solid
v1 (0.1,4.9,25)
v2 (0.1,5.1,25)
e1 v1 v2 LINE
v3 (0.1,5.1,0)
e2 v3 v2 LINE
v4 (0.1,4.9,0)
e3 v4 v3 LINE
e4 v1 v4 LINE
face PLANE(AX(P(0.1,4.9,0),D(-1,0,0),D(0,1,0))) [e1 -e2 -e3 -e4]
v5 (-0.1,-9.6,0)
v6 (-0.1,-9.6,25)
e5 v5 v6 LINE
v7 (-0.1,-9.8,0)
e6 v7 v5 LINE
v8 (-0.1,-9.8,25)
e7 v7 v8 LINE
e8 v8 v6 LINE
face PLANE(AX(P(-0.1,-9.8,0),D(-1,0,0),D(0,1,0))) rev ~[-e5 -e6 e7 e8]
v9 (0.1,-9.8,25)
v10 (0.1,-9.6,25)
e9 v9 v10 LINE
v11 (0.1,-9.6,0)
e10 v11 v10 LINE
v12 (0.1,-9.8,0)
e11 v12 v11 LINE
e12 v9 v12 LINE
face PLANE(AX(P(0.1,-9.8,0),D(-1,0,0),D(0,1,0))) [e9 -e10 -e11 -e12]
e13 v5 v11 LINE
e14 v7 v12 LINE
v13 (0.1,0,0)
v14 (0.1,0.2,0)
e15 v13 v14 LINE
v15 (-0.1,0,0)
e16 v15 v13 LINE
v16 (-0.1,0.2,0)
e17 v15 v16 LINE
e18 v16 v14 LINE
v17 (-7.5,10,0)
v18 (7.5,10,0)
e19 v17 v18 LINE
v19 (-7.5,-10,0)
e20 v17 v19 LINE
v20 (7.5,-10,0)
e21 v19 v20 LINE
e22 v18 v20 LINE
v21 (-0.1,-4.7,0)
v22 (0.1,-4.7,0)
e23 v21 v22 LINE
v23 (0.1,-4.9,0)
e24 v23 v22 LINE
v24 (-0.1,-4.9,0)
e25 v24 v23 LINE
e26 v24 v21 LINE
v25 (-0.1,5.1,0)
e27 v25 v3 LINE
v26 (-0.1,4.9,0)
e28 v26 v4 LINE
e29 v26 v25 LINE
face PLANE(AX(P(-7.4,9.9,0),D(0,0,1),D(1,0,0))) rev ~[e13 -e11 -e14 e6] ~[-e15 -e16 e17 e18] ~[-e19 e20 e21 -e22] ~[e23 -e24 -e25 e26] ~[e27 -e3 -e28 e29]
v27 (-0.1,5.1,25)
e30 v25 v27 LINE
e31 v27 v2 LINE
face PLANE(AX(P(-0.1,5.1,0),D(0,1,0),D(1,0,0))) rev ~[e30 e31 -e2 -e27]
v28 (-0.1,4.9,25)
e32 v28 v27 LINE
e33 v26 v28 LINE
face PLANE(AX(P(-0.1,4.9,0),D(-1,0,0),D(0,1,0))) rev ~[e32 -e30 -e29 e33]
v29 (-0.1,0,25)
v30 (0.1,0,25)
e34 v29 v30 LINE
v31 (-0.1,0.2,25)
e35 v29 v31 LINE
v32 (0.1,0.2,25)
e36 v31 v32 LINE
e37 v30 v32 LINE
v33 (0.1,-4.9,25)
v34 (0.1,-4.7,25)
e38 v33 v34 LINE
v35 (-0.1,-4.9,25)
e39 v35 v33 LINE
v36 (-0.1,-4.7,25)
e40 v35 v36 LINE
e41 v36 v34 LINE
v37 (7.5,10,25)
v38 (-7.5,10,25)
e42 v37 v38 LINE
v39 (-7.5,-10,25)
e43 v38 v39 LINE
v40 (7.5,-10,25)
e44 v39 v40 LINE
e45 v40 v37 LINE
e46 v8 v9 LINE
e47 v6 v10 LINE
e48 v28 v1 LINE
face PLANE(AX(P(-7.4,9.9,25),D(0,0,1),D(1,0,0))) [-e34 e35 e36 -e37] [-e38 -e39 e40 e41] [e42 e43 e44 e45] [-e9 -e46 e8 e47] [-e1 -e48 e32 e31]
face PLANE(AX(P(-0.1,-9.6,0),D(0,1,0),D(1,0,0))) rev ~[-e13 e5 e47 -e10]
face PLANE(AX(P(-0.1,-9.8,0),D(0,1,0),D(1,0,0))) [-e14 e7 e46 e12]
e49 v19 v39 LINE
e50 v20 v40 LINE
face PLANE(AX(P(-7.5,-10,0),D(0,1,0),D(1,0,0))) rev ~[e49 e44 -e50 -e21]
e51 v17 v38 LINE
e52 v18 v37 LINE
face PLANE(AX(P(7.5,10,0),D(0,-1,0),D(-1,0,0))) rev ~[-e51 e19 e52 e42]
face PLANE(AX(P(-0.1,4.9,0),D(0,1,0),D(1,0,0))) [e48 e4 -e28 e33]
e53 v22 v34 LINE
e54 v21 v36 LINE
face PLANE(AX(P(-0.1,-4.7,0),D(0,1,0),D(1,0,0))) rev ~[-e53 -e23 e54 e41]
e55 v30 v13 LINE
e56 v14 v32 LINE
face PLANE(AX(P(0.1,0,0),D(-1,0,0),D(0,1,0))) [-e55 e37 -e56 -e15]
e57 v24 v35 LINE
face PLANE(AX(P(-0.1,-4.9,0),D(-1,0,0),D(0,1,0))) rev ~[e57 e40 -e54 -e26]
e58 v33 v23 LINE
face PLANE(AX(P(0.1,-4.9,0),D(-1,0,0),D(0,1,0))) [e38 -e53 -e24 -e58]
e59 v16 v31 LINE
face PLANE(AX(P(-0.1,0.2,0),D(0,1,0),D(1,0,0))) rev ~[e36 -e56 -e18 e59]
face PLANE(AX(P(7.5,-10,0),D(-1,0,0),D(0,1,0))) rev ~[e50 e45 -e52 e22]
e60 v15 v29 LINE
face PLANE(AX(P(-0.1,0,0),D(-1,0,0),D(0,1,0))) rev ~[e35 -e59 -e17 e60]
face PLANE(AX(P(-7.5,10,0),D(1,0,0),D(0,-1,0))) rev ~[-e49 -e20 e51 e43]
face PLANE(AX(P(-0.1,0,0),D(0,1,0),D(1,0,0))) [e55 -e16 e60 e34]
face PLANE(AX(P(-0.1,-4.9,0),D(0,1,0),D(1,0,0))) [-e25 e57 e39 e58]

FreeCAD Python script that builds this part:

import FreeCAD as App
import Part
import Sketcher

V = App.Vector
Q = App.Units.Quantity


def add_polygon(sketch, points):
    """Adds a closed chain of lines whose ends are joined by coincident constraints."""
    first, n = sketch.GeometryCount, len(points)
    for a, b in zip(points, points[1:] + points[:1]):
        sketch.addGeometry(Part.LineSegment(App.Vector(*a, 0), App.Vector(*b, 0)), False)
    for i in range(n):
        sketch.addConstraint(Sketcher.Constraint("Coincident", first + i, 2, first + (i + 1) % n, 1))

doc = App.newDocument("Part")
params = doc.addObject("Spreadsheet::Sheet", "Params")
for row, (alias, value) in enumerate([
    ("sketch1_width", "15 mm"),
    ("sketch1_width2", "7.2 mm"),
    ("sketch1_height", "4.7 mm"),
    ("pad1_length", "0.725 mm"),
    ("sketch2_width", "15 mm"),
    ("sketch2_height", "20 mm"),
    ("sketch2_width2", "0.2 mm"),
    ("pad2_length", "25 mm"),
], start=1):
    params.set(f"A{row}", alias)
    params.set(f"B{row}", "=" + value)
    params.setAlias(f"B{row}", alias)

body = doc.addObject("PartDesign::Body", "Body")

sketch1 = body.newObject("Sketcher::SketchObject", "Sketch")
sketch1.AttachmentSupport = (doc.getObject("XY_Plane"), [""])
sketch1.MapMode = "FlatFace"
add_polygon(sketch1, [(-0.1, 10), (-7.3, 10), (-7.3, 9.8), (-7.5, 9.8), (-7.5, 5.1), (-7.3, 5.1), (-7.3, 4.9), (-7.5, 4.9), (-7.5, 0.2), (-7.3, 0.2), (-7.3, 0), (-7.5, 0), (-7.5, -4.7), (-7.3, -4.7), (-7.3, -4.9), (-7.5, -4.9), (-7.5, -9.6), (-7.3, -9.6), (-7.3, -9.8), (-7.5, -9.8), (-7.5, -10), (7.5, -10), (7.5, -9.8), (7.3, -9.8), (7.3, -9.6), (7.5, -9.6), (7.5, -4.9), (7.3, -4.9), (7.3, -4.7), (7.5, -4.7), (7.5, 0), (7.3, 0), (7.3, 0.2), (7.5, 0.2), (7.5, 4.9), (7.3, 4.9), (7.3, 5.1), (7.5, 5.1), (7.5, 9.8), (7.3, 9.8), (7.3, 10), (0.1, 10), (0.1, 9.8), (-0.1, 9.8)])
add_polygon(sketch1, [(0.1, -9.8), (-0.1, -9.8), (-0.1, -9.6), (0.1, -9.6)])
add_polygon(sketch1, [(0.1, -4.9), (-0.1, -4.9), (-0.1, -4.7), (0.1, -4.7)])
add_polygon(sketch1, [(0.1, 0), (-0.1, 0), (-0.1, 0.2), (0.1, 0.2)])
add_polygon(sketch1, [(0.1, 4.9), (-0.1, 4.9), (-0.1, 5.1), (0.1, 5.1)])
sketch1.addConstraint(Sketcher.Constraint("Horizontal", 0))
sketch1.addConstraint(Sketcher.Constraint("Vertical", 1))
sketch1.addConstraint(Sketcher.Constraint("Horizontal", 2))
sketch1.addConstraint(Sketcher.Constraint("Vertical", 3))
sketch1.addConstraint(Sketcher.Constraint("Horizontal", 4))
sketch1.addConstraint(Sketcher.Constraint("Vertical", 5))
sketch1.addConstraint(Sketcher.Constraint("Horizontal", 6))
sketch1.addConstraint(Sketcher.Constraint("Vertical", 7))
sketch1.addConstraint(Sketcher.Constraint("Horizontal", 8))
sketch1.addConstraint(Sketcher.Constraint("Vertical", 9))
sketch1.addConstraint(Sketcher.Constraint("Horizontal", 10))
sketch1.addConstraint(Sketcher.Constraint("Vertical", 11))
sketch1.addConstraint(Sketcher.Constraint("Horizontal", 12))
sketch1.addConstraint(Sketcher.Constraint("Vertical", 13))
sketch1.addConstraint(Sketcher.Constraint("Horizontal", 14))
sketch1.addConstraint(Sketcher.Constraint("Vertical", 15))
sketch1.addConstraint(Sketcher.Constraint("Horizontal", 16))
sketch1.addConstraint(Sketcher.Constraint("Vertical", 17))
sketch1.addConstraint(Sketcher.Constraint("Horizontal", 18))
sketch1.addConstraint(Sketcher.Constraint("Vertical", 19))
sketch1.addConstraint(Sketcher.Constraint("Horizontal", 20))
sketch1.addConstraint(Sketcher.Constraint("Vertical", 21))
sketch1.addConstraint(Sketcher.Constraint("Horizontal", 22))
sketch1.addConstraint(Sketcher.Constraint("Vertical", 23))
sketch1.addConstraint(Sketcher.Constraint("Horizontal", 24))
sketch1.addConstraint(Sketcher.Constraint("Vertical", 25))
sketch1.addConstraint(Sketcher.Constraint("Horizontal", 26))
sketch1.addConstraint(Sketcher.Constraint("Vertical", 27))
sketch1.addConstraint(Sketcher.Constraint("Horizontal", 28))
sketch1.addConstraint(Sketcher.Constraint("Vertical", 29))
sketch1.addConstraint(Sketcher.Constraint("Horizontal", 30))
sketch1.addConstraint(Sketcher.Constraint("Vertical", 31))
sketch1.addConstraint(Sketcher.Constraint("Horizontal", 32))
sketch1.addConstraint(Sketcher.Constraint("Vertical", 33))
sketch1.addConstraint(Sketcher.Constraint("Horizontal", 34))
sketch1.addConstraint(Sketcher.Constraint("Vertical", 35))
sketch1.addConstraint(Sketcher.Constraint("Horizontal", 36))
sketch1.addConstraint(Sketcher.Constraint("Vertical", 37))
sketch1.addConstraint(Sketcher.Constraint("Horizontal", 38))
sketch1.addConstraint(Sketcher.Constraint("Vertical", 39))
sketch1.addConstraint(Sketcher.Constraint("Horizontal", 40))
sketch1.addConstraint(Sketcher.Constraint("Vertical", 41))
sketch1.addConstraint(Sketcher.Constraint("Horizontal", 42))
sketch1.addConstraint(Sketcher.Constraint("Vertical", 43))
sketch1.addConstraint(Sketcher.Constraint("Horizontal", 44))
sketch1.addConstraint(Sketcher.Constraint("Vertical", 45))
sketch1.addConstraint(Sketcher.Constraint("Horizontal", 46))
sketch1.addConstraint(Sketcher.Constraint("Vertical", 47))
sketch1.addConstraint(Sketcher.Constraint("Horizontal", 48))
sketch1.addConstraint(Sketcher.Constraint("Vertical", 49))
sketch1.addConstraint(Sketcher.Constraint("Horizontal", 50))
sketch1.addConstraint(Sketcher.Constraint("Vertical", 51))
sketch1.addConstraint(Sketcher.Constraint("Horizontal", 52))
sketch1.addConstraint(Sketcher.Constraint("Vertical", 53))
sketch1.addConstraint(Sketcher.Constraint("Horizontal", 54))
sketch1.addConstraint(Sketcher.Constraint("Vertical", 55))
sketch1.addConstraint(Sketcher.Constraint("Horizontal", 56))
sketch1.addConstraint(Sketcher.Constraint("Vertical", 57))
sketch1.addConstraint(Sketcher.Constraint("Horizontal", 58))
sketch1.addConstraint(Sketcher.Constraint("Vertical", 59))
sketch1.addConstraint(Sketcher.Constraint("Symmetric", 2, 2, 21, 2, -1, 1))
sketch1.addConstraint(Sketcher.Constraint("Symmetric", 6, 2, 25, 2, -1, 1))
sketch1.addConstraint(Sketcher.Constraint("Symmetric", 10, 2, 29, 2, -1, 1))
sketch1.addConstraint(Sketcher.Constraint("Symmetric", 14, 2, 33, 2, -1, 1))
sketch1.addConstraint(Sketcher.Constraint("Symmetric", 18, 2, 37, 2, -1, 1))
sketch1.addConstraint(Sketcher.Constraint("Symmetric", 41, 2, 44, 2, -1, 1))
sketch1.addConstraint(Sketcher.Constraint("Symmetric", 52, 2, 55, 2, -1, 1))
sketch1.addConstraint(Sketcher.Constraint("Symmetric", 51, 2, 56, 2, -1, 1))
sketch1.addConstraint(Sketcher.Constraint("Symmetric", 18, 2, 21, 2, -2))
sketch1.addConstraint(Sketcher.Constraint("Symmetric", 16, 2, 23, 2, -2))
sketch1.addConstraint(Sketcher.Constraint("Symmetric", 14, 2, 25, 2, -2))
sketch1.addConstraint(Sketcher.Constraint("Symmetric", 12, 2, 27, 2, -2))
sketch1.addConstraint(Sketcher.Constraint("Symmetric", 9, 2, 30, 2, -2))
sketch1.addConstraint(Sketcher.Constraint("Symmetric", 4, 2, 35, 2, -2))
sketch1.addConstraint(Sketcher.Constraint("Symmetric", 0, 2, 39, 2, -2))
sketch1.addConstraint(Sketcher.Constraint("Horizontal", 8, 2, 31, 2))
sketch1.addConstraint(Sketcher.Constraint("Horizontal", 38, 2, 41, 2))
sketch1.addConstraint(Sketcher.Constraint("Horizontal", 24, 2, 45, 2))
sketch1.addConstraint(Sketcher.Constraint("Horizontal", 26, 2, 48, 2))
sketch1.addConstraint(Sketcher.Constraint("Horizontal", 28, 2, 49, 2))
sketch1.addConstraint(Sketcher.Constraint("Horizontal", 32, 2, 53, 2))
sketch1.addConstraint(Sketcher.Constraint("Horizontal", 36, 2, 57, 2))
sketch1.addConstraint(Sketcher.Constraint("Vertical", 1, 2, 4, 2))
sketch1.addConstraint(Sketcher.Constraint("Vertical", 3, 2, 6, 2))
sketch1.addConstraint(Sketcher.Constraint("Vertical", 5, 2, 8, 2))
sketch1.addConstraint(Sketcher.Constraint("Vertical", 7, 2, 10, 2))
sketch1.addConstraint(Sketcher.Constraint("Vertical", 9, 2, 12, 2))
sketch1.addConstraint(Sketcher.Constraint("Vertical", 13, 2, 16, 2))
sketch1.addConstraint(Sketcher.Constraint("Vertical", 43, 2, 44, 2))
sketch1.addConstraint(Sketcher.Constraint("Vertical", 41, 2, 46, 2))
sketch1.addConstraint(Sketcher.Constraint("Vertical", 45, 2, 48, 2))
sketch1.addConstraint(Sketcher.Constraint("Vertical", 47, 2, 50, 2))
sketch1.addConstraint(Sketcher.Constraint("Vertical", 49, 2, 52, 2))
sketch1.addConstraint(Sketcher.Constraint("Vertical", 55, 2, 58, 2))
sketch1.addConstraint(Sketcher.Constraint("Equal", 38, 42))
sketch1.addConstraint(Sketcher.Constraint("Equal", 58, 1))
sketch1.addConstraint(Sketcher.Constraint("Equal", 1, 5))
sketch1.addConstraint(Sketcher.Constraint("Equal", 3, 7))
sketch1.addConstraint(Sketcher.Constraint("Equal", 5, 9))
sketch1.addConstraint(Sketcher.Constraint("Equal", 7, 11))
sketch1.addConstraint(Sketcher.Constraint("Equal", 11, 15))
sketch1.addConstraint(Sketcher.Constraint("Equal", 17, 19))
sketch1.addConstraint(Sketcher.Constraint("DistanceX", 20, 1, 20, 2, Q("15 mm")))
sketch1.addConstraint(Sketcher.Constraint("DistanceX", 0, 2, 0, 1, Q("7.2 mm")))
sketch1.addConstraint(Sketcher.Constraint("DistanceY", 3, 2, 3, 1, Q("4.7 mm")))
sketch1.setExpression("Constraints[162]", "Params.sketch1_width")
sketch1.setExpression("Constraints[163]", "Params.sketch1_width2")
sketch1.setExpression("Constraints[164]", "Params.sketch1_height")
pad1 = body.newObject("PartDesign::Pad", "Pad")
pad1.Profile = sketch1
pad1.setExpression("Length", "Params.pad1_length")

sketch2 = body.newObject("Sketcher::SketchObject", "Sketch001")
sketch2.AttachmentSupport = (doc.getObject("XY_Plane"), [""])
sketch2.MapMode = "FlatFace"
add_polygon(sketch2, [(-7.5, 10), (-7.5, -10), (7.5, -10), (7.5, 10)])
add_polygon(sketch2, [(0.1, -9.8), (-0.1, -9.8), (-0.1, -9.6), (0.1, -9.6)])
add_polygon(sketch2, [(0.1, -4.9), (-0.1, -4.9), (-0.1, -4.7), (0.1, -4.7)])
add_polygon(sketch2, [(0.1, 0), (-0.1, 0), (-0.1, 0.2), (0.1, 0.2)])
add_polygon(sketch2, [(0.1, 4.9), (-0.1, 4.9), (-0.1, 5.1), (0.1, 5.1)])
sketch2.addConstraint(Sketcher.Constraint("Vertical", 0))
sketch2.addConstraint(Sketcher.Constraint("Horizontal", 1))
sketch2.addConstraint(Sketcher.Constraint("Vertical", 2))
sketch2.addConstraint(Sketcher.Constraint("Horizontal", 3))
sketch2.addConstraint(Sketcher.Constraint("Horizontal", 4))
sketch2.addConstraint(Sketcher.Constraint("Vertical", 5))
sketch2.addConstraint(Sketcher.Constraint("Horizontal", 6))
sketch2.addConstraint(Sketcher.Constraint("Vertical", 7))
sketch2.addConstraint(Sketcher.Constraint("Horizontal", 8))
sketch2.addConstraint(Sketcher.Constraint("Vertical", 9))
sketch2.addConstraint(Sketcher.Constraint("Horizontal", 10))
sketch2.addConstraint(Sketcher.Constraint("Vertical", 11))
sketch2.addConstraint(Sketcher.Constraint("Horizontal", 12))
sketch2.addConstraint(Sketcher.Constraint("Vertical", 13))
sketch2.addConstraint(Sketcher.Constraint("Horizontal", 14))
sketch2.addConstraint(Sketcher.Constraint("Vertical", 15))
sketch2.addConstraint(Sketcher.Constraint("Horizontal", 16))
sketch2.addConstraint(Sketcher.Constraint("Vertical", 17))
sketch2.addConstraint(Sketcher.Constraint("Horizontal", 18))
sketch2.addConstraint(Sketcher.Constraint("Vertical", 19))
sketch2.addConstraint(Sketcher.Constraint("Symmetric", 0, 2, 2, 2, -1, 1))
sketch2.addConstraint(Sketcher.Constraint("Symmetric", 12, 2, 15, 2, -1, 1))
sketch2.addConstraint(Sketcher.Constraint("Symmetric", 11, 2, 16, 2, -1, 1))
sketch2.addConstraint(Sketcher.Constraint("Vertical", 5, 2, 8, 2))
sketch2.addConstraint(Sketcher.Constraint("Vertical", 7, 2, 10, 2))
sketch2.addConstraint(Sketcher.Constraint("Vertical", 9, 2, 12, 2))
sketch2.addConstraint(Sketcher.Constraint("Vertical", 11, 2, 14, 2))
sketch2.addConstraint(Sketcher.Constraint("Vertical", 15, 2, 18, 2))
sketch2.addConstraint(Sketcher.Constraint("Equal", 18, 5))
sketch2.addConstraint(Sketcher.Constraint("Equal", 7, 9))
sketch2.addConstraint(Sketcher.Constraint("Equal", 11, 13))
sketch2.addConstraint(Sketcher.Constraint("Equal", 15, 17))
sketch2.addConstraint(Sketcher.Constraint("DistanceX", 1, 1, 1, 2, Q("15 mm")))
sketch2.addConstraint(Sketcher.Constraint("DistanceY", 0, 2, 0, 1, Q("20 mm")))
sketch2.addConstraint(Sketcher.Constraint("DistanceX", 4, 2, 4, 1, Q("0.2 mm")))
sketch2.addConstraint(Sketcher.Constraint("DistanceY", 4, 2, -1, 1, Q("9.8 mm")))
sketch2.addConstraint(Sketcher.Constraint("DistanceY", 8, 2, -1, 1, Q("4.9 mm")))
sketch2.setExpression("Constraints[52]", "Params.sketch2_width")
sketch2.setExpression("Constraints[53]", "Params.sketch2_height")
sketch2.setExpression("Constraints[54]", "Params.sketch2_width2")
pad2 = body.newObject("PartDesign::Pad", "Pad001")
pad2.Profile = sketch2
pad2.setExpression("Length", "Params.pad2_length")

doc.recompute()
